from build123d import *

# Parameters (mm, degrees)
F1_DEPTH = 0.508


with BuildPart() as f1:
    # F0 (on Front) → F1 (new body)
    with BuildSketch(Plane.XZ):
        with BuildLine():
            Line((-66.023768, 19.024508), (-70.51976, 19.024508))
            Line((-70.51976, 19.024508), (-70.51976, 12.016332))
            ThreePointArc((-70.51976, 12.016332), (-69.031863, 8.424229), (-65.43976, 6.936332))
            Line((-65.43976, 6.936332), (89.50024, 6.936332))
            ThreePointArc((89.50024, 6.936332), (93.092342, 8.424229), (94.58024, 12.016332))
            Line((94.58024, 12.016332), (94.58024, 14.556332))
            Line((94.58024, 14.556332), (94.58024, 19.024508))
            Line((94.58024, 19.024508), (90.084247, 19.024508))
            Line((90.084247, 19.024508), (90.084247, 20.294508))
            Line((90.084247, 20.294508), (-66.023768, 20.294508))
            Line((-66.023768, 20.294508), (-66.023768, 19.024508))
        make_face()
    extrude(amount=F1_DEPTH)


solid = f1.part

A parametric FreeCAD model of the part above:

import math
import FreeCAD as App
import Part
import Sketcher

V = App.Vector
Q = App.Units.Quantity

doc = App.newDocument("Part")
body = doc.addObject("PartDesign::Body", "Body")

# Sketch on XZ plane
sketch1 = doc.addObject("Sketcher::SketchObject", "Sketch")
body.addObject(sketch1)
sketch1.AttachmentSupport = (doc.XZ_Plane, [""])
sketch1.MapMode = "FlatFace"
sketch1.addGeometry(Part.LineSegment(V(-66, 19, 0), V(-70.5, 19, 0)), False)
sketch1.addGeometry(Part.LineSegment(V(-70.5, 19, 0), V(-70.5, 12, 0)), False)
sketch1.addGeometry(Part.ArcOfCircle(Part.Circle(V(-65.4, 12, 0), V(0, 0, 1), 5.1), math.radians(180), math.radians(270)), False)
sketch1.addGeometry(Part.LineSegment(V(-65.4, 6.9, 0), V(89.5, 6.9, 0)), False)
sketch1.addGeometry(Part.ArcOfCircle(Part.Circle(V(89.5, 12, 0), V(0, 0, 1), 5.1), math.radians(-90), math.radians(0)), False)
sketch1.addGeometry(Part.LineSegment(V(94.6, 12, 0), V(94.6, 19, 0)), False)
sketch1.addGeometry(Part.LineSegment(V(94.6, 19, 0), V(90.1, 19, 0)), False)
sketch1.addGeometry(Part.LineSegment(V(90.1, 19, 0), V(90.1, 20.3, 0)), False)
sketch1.addGeometry(Part.LineSegment(V(90.1, 20.3, 0), V(-66, 20.3, 0)), False)
sketch1.addGeometry(Part.LineSegment(V(-66, 20.3, 0), V(-66, 19, 0)), False)
sketch1.addConstraint(Sketcher.Constraint("Coincident", 0, 2, 1, 1))
sketch1.addConstraint(Sketcher.Constraint("Tangent", 1, 2, 2, 1))
sketch1.addConstraint(Sketcher.Constraint("Tangent", 2, 2, 3, 1))
sketch1.addConstraint(Sketcher.Constraint("Tangent", 3, 2, 4, 1))
sketch1.addConstraint(Sketcher.Constraint("Tangent", 4, 2, 5, 1))
sketch1.addConstraint(Sketcher.Constraint("Coincident", 5, 2, 6, 1))
sketch1.addConstraint(Sketcher.Constraint("Coincident", 6, 2, 7, 1))
sketch1.addConstraint(Sketcher.Constraint("Coincident", 7, 2, 8, 1))
sketch1.addConstraint(Sketcher.Constraint("Coincident", 8, 2, 9, 1))
sketch1.addConstraint(Sketcher.Constraint("Coincident", 9, 2, 0, 1))
sketch1.addConstraint(Sketcher.Constraint("Horizontal", 0))
sketch1.addConstraint(Sketcher.Constraint("Vertical", 1))
sketch1.addConstraint(Sketcher.Constraint("Horizontal", 3))
sketch1.addConstraint(Sketcher.Constraint("Vertical", 5))
sketch1.addConstraint(Sketcher.Constraint("Horizontal", 6))
sketch1.addConstraint(Sketcher.Constraint("Vertical", 7))
sketch1.addConstraint(Sketcher.Constraint("Horizontal", 8))
sketch1.addConstraint(Sketcher.Constraint("Vertical", 9))
sketch1.addConstraint(Sketcher.Constraint("Equal", 2, 4))
sketch1.addConstraint(Sketcher.Constraint("Horizontal", 0, 2, 5, 2))
sketch1.addConstraint(Sketcher.Constraint("Equal", 0, 6))
sketch1.addConstraint(Sketcher.Constraint("Radius", 2, Q("0.1999999 in")))
sketch1.addConstraint(Sketcher.Constraint("DistanceX", 3, 1, 3, 2, Q("6.1 in")))
sketch1.addConstraint(Sketcher.Constraint("DistanceY", 7, 1, 7, 2, Q("0.05 in")))
sketch1.addConstraint(Sketcher.Constraint("DistanceX", 0, 2, 0, 1, Q("4.495992 mm")))
sketch1.addConstraint(Sketcher.Constraint("DistanceY", 1, 2, 1, 1, Q("7.008176 mm")))
sketch1.addConstraint(Sketcher.Constraint("DistanceX", 2, 3, -1, 1, Q("65.439762 mm")))
sketch1.addConstraint(Sketcher.Constraint("DistanceY", -1, 1, 2, 3, Q("12.01633 mm")))
pad1 = doc.addObject("PartDesign::Pad", "Pad")
body.addObject(pad1)
pad1.Profile = sketch1
pad1.Length = Q("0.02 in")

doc.recompute()
